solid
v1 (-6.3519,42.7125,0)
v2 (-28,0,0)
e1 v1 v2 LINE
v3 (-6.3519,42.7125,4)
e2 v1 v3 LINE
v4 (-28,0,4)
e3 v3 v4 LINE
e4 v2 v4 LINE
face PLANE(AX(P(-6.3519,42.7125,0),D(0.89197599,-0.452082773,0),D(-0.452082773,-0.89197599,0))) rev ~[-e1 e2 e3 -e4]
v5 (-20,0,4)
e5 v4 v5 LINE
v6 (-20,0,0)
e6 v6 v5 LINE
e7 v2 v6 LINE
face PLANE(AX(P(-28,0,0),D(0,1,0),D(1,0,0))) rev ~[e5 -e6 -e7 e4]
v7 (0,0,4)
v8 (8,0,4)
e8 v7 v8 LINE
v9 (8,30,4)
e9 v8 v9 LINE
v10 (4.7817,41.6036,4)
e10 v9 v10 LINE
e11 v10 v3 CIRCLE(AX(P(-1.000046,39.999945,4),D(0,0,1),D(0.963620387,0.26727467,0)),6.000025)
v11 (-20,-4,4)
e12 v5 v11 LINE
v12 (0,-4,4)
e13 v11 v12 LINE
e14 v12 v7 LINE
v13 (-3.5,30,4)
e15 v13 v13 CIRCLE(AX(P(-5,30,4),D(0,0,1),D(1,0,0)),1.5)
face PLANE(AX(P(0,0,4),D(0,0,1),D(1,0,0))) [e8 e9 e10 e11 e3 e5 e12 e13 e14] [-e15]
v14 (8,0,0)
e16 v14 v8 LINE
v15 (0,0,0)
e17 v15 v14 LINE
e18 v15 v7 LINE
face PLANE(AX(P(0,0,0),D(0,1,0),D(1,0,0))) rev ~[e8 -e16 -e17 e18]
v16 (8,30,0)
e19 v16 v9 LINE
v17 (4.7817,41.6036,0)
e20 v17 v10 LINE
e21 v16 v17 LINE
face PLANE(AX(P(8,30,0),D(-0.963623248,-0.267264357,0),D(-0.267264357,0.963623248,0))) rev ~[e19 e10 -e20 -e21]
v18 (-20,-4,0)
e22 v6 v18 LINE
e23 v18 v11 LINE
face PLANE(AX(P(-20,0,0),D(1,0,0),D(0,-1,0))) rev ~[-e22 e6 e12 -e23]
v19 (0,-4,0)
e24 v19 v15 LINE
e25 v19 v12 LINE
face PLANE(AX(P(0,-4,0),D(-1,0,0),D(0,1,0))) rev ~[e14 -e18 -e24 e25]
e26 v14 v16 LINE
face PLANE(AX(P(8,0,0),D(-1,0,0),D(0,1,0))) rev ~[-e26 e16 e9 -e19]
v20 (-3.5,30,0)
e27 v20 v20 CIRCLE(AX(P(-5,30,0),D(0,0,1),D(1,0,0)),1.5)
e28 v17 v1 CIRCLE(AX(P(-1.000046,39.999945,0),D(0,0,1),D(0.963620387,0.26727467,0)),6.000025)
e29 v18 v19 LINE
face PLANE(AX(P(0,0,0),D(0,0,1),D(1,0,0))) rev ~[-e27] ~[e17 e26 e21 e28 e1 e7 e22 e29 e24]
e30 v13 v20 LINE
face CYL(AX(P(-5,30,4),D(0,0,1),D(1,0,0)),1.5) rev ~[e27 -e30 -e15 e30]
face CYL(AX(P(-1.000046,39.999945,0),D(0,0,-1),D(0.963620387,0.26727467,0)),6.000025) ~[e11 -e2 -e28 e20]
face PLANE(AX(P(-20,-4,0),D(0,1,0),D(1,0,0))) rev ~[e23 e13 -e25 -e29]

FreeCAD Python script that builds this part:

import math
import FreeCAD as App
import Part
import Sketcher

V = App.Vector
Q = App.Units.Quantity

doc = App.newDocument("Part")
body = doc.addObject("PartDesign::Body", "Body")

# Sketch on XY plane
sketch1 = doc.addObject("Sketcher::SketchObject", "Sketch")
body.addObject(sketch1)
sketch1.AttachmentSupport = (doc.XY_Plane, [""])
sketch1.MapMode = "FlatFace"
sketch1.addGeometry(Part.LineSegment(V(-28, 0, 0), V(-20, 0, 0)), False)
sketch1.addGeometry(Part.LineSegment(V(-20, 0, 0), V(-20, -4, 0)), False)
sketch1.addGeometry(Part.LineSegment(V(-20, -4, 0), V(0, -4, 0)), False)
sketch1.addGeometry(Part.LineSegment(V(0, -4, 0), V(0, 0, 0)), False)
sketch1.addGeometry(Part.LineSegment(V(0, 0, 0), V(8, 0, 0)), False)
sketch1.addGeometry(Part.LineSegment(V(8, 0, 0), V(8, 30, 0)), False)
sketch1.addGeometry(Part.LineSegment(V(8, 30, 0), V(4.7817, 41.6036, 0)), False)
sketch1.addGeometry(Part.ArcOfCircle(Part.Circle(V(-1, 40, 0), V(0, 0, 1), 5.999966), math.radians(15.501773), math.radians(153.12277)), False)
sketch1.addGeometry(Part.LineSegment(V(-6.3519, 42.7125, 0), V(-28, 0, 0)), False)
sketch1.addConstraint(Sketcher.Constraint("Coincident", 0, 2, 1, 1))
sketch1.addConstraint(Sketcher.Constraint("Coincident", 1, 2, 2, 1))
sketch1.addConstraint(Sketcher.Constraint("Coincident", 2, 2, 3, 1))
sketch1.addConstraint(Sketcher.Constraint("Coincident", 3, 2, 4, 1))
sketch1.addConstraint(Sketcher.Constraint("Coincident", 4, 2, 5, 1))
sketch1.addConstraint(Sketcher.Constraint("Coincident", 5, 2, 6, 1))
sketch1.addConstraint(Sketcher.Constraint("Tangent", 6, 2, 7, 1))
sketch1.addConstraint(Sketcher.Constraint("Tangent", 7, 2, 8, 1))
sketch1.addConstraint(Sketcher.Constraint("Coincident", 8, 2, 0, 1))
sketch1.addConstraint(Sketcher.Constraint("Horizontal", 0))
sketch1.addConstraint(Sketcher.Constraint("Vertical", 1))
sketch1.addConstraint(Sketcher.Constraint("Horizontal", 2))
sketch1.addConstraint(Sketcher.Constraint("Vertical", 3))
sketch1.addConstraint(Sketcher.Constraint("Horizontal", 4))
sketch1.addConstraint(Sketcher.Constraint("Vertical", 5))
sketch1.addConstraint(Sketcher.Constraint("Coincident", 3, 2, -1, 1))
sketch1.addConstraint(Sketcher.Constraint("PointOnObject", 0, 2, -1))
sketch1.addConstraint(Sketcher.Constraint("Equal", 0, 4))
sketch1.addConstraint(Sketcher.Constraint("Radius", 7, Q("6 mm")))
sketch1.addConstraint(Sketcher.Constraint("DistanceX", 2, 1, 2, 2, Q("20 mm")))
sketch1.addConstraint(Sketcher.Constraint("DistanceY", 1, 2, 1, 1, Q("4 mm")))
sketch1.addConstraint(Sketcher.Constraint("DistanceY", 5, 1, 5, 2, Q("30 mm")))
sketch1.addConstraint(Sketcher.Constraint("DistanceX", 7, 3, -1, 1, Q("1 mm")))
sketch1.addConstraint(Sketcher.Constraint("DistanceY", -1, 1, 7, 3, Q("40 mm")))
sketch1.addConstraint(Sketcher.Constraint("DistanceX", 8, 2, 4, 2, Q("36 mm")))
pad1 = doc.addObject("PartDesign::Pad", "Pad")
body.addObject(pad1)
pad1.Profile = sketch1
pad1.Length = 4

# Sketch on XY plane
sketch2 = doc.addObject("Sketcher::SketchObject", "Sketch001")
body.addObject(sketch2)
sketch2.AttachmentSupport = (doc.XY_Plane, [""])
sketch2.MapMode = "FlatFace"
sketch2.AttachmentOffset = App.Placement(V(0, 0, 4), App.Rotation())
sketch2.addGeometry(Part.Circle(V(-5, 30, 0), V(0, 0, 1), 1.5), False)
sketch2.addConstraint(Sketcher.Constraint("Diameter", 0, Q("3 mm")))
sketch2.addConstraint(Sketcher.Constraint("DistanceY", -1, 1, 0, 3, Q("30 mm")))
sketch2.addConstraint(Sketcher.Constraint("DistanceX", 0, 3, -1, 1, Q("5 mm")))
pocket1 = doc.addObject("PartDesign::Pocket", "Pocket")
body.addObject(pocket1)
pocket1.Profile = sketch2
pocket1.Type = "ThroughAll"

doc.recompute()
